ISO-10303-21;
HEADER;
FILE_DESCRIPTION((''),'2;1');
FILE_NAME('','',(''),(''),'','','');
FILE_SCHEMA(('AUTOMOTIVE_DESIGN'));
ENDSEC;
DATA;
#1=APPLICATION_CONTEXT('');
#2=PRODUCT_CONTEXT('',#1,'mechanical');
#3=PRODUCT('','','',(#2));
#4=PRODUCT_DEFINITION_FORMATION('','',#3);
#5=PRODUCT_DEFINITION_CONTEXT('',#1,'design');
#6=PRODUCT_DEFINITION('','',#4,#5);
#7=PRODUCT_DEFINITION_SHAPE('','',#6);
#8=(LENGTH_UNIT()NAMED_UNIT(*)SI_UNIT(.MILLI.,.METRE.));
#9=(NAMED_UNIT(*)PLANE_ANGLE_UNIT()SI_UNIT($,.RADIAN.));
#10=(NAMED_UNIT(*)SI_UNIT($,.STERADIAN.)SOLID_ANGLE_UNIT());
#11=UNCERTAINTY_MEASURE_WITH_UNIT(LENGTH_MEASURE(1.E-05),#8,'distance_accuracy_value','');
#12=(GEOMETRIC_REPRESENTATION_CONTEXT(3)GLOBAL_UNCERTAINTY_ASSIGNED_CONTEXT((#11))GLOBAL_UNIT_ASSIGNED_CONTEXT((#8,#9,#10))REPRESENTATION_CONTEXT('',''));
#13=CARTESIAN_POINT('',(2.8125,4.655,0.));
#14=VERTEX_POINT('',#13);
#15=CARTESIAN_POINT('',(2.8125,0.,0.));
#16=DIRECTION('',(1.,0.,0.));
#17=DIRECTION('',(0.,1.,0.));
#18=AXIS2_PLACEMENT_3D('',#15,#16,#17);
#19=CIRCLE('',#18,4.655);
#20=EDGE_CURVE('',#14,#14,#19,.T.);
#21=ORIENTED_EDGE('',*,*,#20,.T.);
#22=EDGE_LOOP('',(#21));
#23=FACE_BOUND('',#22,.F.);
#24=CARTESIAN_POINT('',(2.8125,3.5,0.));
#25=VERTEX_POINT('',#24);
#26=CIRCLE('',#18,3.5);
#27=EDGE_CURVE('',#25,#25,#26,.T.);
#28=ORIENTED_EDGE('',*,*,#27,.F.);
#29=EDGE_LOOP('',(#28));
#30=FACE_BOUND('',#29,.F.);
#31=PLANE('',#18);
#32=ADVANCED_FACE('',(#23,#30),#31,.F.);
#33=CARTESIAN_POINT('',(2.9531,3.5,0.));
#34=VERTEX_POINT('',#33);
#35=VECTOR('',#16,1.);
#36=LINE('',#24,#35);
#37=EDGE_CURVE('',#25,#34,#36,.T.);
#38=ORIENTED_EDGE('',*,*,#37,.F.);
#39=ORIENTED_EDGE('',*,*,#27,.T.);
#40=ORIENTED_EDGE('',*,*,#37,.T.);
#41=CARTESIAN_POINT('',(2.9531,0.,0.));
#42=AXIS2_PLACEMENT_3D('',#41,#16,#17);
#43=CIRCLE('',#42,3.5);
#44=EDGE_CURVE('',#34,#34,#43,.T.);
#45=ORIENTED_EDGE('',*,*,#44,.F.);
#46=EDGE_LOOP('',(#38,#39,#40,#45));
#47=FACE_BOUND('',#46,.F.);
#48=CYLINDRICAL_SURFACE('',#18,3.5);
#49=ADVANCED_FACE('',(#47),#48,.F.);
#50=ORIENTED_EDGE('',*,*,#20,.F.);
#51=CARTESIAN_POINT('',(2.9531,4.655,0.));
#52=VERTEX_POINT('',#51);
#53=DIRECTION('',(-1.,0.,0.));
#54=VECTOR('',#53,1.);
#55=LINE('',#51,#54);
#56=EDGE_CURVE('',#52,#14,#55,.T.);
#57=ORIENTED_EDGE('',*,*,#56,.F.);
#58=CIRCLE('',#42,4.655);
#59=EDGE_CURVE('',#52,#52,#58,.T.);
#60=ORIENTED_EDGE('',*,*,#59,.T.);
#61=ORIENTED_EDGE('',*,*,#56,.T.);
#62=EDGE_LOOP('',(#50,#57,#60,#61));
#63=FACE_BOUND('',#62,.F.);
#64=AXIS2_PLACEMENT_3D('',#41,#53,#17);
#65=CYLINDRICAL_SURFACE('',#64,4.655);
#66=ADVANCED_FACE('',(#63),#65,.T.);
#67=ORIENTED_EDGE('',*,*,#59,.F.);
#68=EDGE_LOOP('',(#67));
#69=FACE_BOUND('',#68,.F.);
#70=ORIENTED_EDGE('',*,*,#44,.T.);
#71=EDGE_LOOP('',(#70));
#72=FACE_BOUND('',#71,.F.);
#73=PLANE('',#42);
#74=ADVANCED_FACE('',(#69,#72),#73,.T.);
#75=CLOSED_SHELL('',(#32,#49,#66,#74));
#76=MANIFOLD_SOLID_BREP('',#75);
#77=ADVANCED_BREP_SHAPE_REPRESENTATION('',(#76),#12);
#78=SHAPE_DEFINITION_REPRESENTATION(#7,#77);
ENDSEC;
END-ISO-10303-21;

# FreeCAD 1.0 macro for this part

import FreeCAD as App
import Part
import Sketcher
from FreeCAD import Vector
Q = App.Units.Quantity


def add_polygon(sketch, points):
    """Adds a closed chain of lines whose ends are joined by coincident constraints."""
    first, n = sketch.GeometryCount, len(points)
    for a, b in zip(points, points[1:] + points[:1]):
        sketch.addGeometry(Part.LineSegment(App.Vector(*a, 0), App.Vector(*b, 0)), False)
    for i in range(n):
        sketch.addConstraint(Sketcher.Constraint("Coincident", first + i, 2, first + (i + 1) % n, 1))

doc = App.newDocument("Part")
body = doc.addObject("PartDesign::Body", "Body")

sketch1 = body.newObject("Sketcher::SketchObject", "Sketch")
sketch1.AttachmentSupport = (doc.getObject("XY_Plane"), [""])
sketch1.MapMode = "FlatFace"
add_polygon(sketch1, [(2.81, 4.66), (2.81, 3.5), (2.95, 3.5), (2.95, 4.66)])
sketch1.addConstraint(Sketcher.Constraint("Vertical", 0))
sketch1.addConstraint(Sketcher.Constraint("Horizontal", 1))
sketch1.addConstraint(Sketcher.Constraint("Vertical", 2))
sketch1.addConstraint(Sketcher.Constraint("Horizontal", 3))
sketch1.addConstraint(Sketcher.Constraint("DistanceY", -1, 1, 0, 2, Q("3.5 mm")))
sketch1.addConstraint(Sketcher.Constraint("DistanceY", 0, 2, 0, 1, Q("1.155 mm")))
sketch1.addConstraint(Sketcher.Constraint("DistanceX", 1, 1, 1, 2, Q("0.1406 mm")))
sketch1.addConstraint(Sketcher.Constraint("DistanceX", -1, 1, 1, 2, Q("2.953 mm")))
revolution = body.newObject("PartDesign::Revolution", "Revolution")
revolution.Profile = sketch1
revolution.ReferenceAxis = (sketch1, ["H_Axis"])
revolution.Angle = 360

doc.recompute()
